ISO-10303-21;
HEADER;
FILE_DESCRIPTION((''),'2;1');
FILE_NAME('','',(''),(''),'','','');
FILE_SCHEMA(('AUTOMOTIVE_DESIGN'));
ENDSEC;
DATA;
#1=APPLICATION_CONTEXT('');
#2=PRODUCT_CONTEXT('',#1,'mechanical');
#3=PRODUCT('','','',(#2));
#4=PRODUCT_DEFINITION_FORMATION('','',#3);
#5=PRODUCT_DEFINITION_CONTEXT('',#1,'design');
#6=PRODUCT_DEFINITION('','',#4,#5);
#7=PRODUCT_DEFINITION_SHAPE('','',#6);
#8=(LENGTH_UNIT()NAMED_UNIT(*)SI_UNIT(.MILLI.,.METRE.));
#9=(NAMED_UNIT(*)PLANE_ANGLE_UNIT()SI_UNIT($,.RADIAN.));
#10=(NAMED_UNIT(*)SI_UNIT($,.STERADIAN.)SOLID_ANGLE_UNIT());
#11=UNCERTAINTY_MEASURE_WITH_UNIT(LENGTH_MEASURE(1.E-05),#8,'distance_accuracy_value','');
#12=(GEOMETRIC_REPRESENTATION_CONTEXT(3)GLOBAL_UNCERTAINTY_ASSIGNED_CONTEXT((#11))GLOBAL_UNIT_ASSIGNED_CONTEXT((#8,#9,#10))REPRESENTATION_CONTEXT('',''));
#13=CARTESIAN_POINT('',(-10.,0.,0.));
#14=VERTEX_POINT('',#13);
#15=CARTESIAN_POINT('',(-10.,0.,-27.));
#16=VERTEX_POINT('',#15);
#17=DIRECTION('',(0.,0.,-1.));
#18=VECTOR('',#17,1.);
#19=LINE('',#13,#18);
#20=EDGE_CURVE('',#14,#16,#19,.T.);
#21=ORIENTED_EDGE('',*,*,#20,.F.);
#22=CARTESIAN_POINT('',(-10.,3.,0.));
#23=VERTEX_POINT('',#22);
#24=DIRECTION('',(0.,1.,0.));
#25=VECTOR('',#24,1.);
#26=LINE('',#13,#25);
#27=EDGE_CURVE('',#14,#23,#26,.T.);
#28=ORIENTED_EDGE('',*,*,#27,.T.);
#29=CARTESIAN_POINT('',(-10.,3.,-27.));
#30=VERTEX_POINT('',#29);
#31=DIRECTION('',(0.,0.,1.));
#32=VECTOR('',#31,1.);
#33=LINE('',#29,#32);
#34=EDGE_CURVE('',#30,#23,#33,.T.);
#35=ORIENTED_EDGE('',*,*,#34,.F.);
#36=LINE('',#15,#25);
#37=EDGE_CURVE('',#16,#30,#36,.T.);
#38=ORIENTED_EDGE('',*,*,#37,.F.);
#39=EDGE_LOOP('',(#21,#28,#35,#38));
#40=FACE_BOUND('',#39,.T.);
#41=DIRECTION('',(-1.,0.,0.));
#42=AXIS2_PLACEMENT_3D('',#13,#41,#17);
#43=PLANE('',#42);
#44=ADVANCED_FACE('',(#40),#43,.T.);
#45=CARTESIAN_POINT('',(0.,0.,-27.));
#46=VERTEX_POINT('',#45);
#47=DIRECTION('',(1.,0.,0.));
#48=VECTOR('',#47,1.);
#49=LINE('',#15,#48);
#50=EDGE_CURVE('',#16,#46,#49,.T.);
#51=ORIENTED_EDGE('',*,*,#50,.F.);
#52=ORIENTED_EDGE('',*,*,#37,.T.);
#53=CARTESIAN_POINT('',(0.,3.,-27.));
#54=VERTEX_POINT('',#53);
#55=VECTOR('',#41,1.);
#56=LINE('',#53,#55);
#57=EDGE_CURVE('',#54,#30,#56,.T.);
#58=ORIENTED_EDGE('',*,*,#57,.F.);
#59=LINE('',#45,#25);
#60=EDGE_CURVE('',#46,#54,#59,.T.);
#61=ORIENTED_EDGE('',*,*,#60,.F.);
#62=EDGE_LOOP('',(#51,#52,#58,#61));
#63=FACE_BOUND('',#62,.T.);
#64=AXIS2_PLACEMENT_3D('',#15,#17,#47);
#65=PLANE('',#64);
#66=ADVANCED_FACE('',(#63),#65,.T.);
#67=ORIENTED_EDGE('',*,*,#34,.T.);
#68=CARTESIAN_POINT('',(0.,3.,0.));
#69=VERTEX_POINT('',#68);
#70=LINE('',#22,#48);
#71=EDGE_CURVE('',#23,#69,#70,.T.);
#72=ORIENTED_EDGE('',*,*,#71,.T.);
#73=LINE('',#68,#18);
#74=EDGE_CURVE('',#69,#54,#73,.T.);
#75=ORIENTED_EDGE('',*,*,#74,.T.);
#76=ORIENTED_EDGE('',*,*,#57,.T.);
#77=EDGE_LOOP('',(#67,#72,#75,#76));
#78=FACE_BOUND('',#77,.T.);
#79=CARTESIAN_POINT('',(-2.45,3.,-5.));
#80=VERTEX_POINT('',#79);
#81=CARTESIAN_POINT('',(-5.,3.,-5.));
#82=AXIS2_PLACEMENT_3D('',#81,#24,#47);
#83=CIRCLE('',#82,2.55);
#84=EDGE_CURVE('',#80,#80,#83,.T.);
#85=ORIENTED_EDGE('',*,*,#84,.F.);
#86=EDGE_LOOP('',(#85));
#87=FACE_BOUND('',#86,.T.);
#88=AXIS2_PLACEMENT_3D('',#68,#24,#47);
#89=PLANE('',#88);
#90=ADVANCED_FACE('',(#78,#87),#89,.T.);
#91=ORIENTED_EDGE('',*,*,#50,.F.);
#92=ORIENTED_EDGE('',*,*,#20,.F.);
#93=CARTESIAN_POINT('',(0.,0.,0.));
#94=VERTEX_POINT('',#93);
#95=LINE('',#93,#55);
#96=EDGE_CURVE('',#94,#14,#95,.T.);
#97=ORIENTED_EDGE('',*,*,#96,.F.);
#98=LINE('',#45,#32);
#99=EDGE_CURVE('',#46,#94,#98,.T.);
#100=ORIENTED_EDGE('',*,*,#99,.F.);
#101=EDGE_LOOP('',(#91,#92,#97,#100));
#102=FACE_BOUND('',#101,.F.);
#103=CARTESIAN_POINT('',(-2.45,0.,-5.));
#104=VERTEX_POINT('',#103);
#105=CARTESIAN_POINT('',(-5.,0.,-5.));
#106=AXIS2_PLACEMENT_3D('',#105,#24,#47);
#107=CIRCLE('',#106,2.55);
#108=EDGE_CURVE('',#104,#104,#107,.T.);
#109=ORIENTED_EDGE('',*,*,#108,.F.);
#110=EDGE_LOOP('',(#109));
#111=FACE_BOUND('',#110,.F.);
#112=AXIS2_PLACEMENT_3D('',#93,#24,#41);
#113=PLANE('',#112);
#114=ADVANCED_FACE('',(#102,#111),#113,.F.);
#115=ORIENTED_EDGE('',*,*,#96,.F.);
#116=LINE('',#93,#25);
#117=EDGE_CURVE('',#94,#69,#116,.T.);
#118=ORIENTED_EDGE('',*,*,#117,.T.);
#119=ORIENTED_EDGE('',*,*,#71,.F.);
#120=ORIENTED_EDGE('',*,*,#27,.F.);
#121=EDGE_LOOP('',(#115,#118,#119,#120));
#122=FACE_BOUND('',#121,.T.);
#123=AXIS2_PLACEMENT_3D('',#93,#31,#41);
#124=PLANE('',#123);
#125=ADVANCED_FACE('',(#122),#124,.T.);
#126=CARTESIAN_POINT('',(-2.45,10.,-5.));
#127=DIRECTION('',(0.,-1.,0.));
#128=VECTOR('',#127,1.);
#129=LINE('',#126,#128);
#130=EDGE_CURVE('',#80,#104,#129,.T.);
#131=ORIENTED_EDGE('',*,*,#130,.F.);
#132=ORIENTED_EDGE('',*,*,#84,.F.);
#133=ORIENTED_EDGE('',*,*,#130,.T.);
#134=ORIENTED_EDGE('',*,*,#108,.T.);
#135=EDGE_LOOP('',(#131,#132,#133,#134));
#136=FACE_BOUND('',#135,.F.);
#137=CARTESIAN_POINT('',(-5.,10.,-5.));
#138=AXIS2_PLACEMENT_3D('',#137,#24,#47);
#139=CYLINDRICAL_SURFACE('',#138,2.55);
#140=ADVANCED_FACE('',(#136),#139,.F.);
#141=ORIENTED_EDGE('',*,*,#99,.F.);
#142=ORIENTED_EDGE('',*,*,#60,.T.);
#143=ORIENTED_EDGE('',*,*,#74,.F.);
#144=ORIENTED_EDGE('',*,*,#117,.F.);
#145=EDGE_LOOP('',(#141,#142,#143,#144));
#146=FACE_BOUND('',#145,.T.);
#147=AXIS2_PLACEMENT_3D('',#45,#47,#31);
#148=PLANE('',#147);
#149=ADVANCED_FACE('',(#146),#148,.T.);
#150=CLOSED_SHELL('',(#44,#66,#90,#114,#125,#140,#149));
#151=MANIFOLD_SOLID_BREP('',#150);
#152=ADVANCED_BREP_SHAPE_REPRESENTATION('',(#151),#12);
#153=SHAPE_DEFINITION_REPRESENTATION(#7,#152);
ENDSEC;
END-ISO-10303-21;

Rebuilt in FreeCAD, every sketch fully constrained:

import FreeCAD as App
import Part
import Sketcher
from FreeCAD import Vector
Q = App.Units.Quantity


def add_polygon(sketch, points):
    """Adds a closed chain of lines whose ends are joined by coincident constraints."""
    first, n = sketch.GeometryCount, len(points)
    for a, b in zip(points, points[1:] + points[:1]):
        sketch.addGeometry(Part.LineSegment(App.Vector(*a, 0), App.Vector(*b, 0)), False)
    for i in range(n):
        sketch.addConstraint(Sketcher.Constraint("Coincident", first + i, 2, first + (i + 1) % n, 1))

doc = App.newDocument("Part")
body = doc.addObject("PartDesign::Body", "Body")

sketch1 = doc.addObject("Sketcher::SketchObject", "Sketch")
body.addObject(sketch1)
sketch1.AttachmentSupport = (doc.XZ_Plane, [""])
sketch1.MapMode = "FlatFace"
add_polygon(sketch1, [(-10, 0), (0, 0), (0, -27), (-10, -27)])
sketch1.addConstraint(Sketcher.Constraint("Horizontal", 0))
sketch1.addConstraint(Sketcher.Constraint("Vertical", 1))
sketch1.addConstraint(Sketcher.Constraint("Horizontal", 2))
sketch1.addConstraint(Sketcher.Constraint("Vertical", 3))
sketch1.addConstraint(Sketcher.Constraint("Coincident", 0, 2, -1, 1))
sketch1.addConstraint(Sketcher.Constraint("DistanceX", 0, 1, 0, 2, Q("10 mm")))
sketch1.addConstraint(Sketcher.Constraint("DistanceY", 1, 2, 1, 1, Q("27 mm")))
pad1 = doc.addObject("PartDesign::Pad", "Pad")
body.addObject(pad1)
pad1.Profile = sketch1
pad1.Length = 10
pad1.Reversed = True

sketch2 = doc.addObject("Sketcher::SketchObject", "Sketch001")
body.addObject(sketch2)
sketch2.AttachmentSupport = (doc.XZ_Plane, [""])
sketch2.MapMode = "FlatFace"
sketch2.AttachmentOffset = App.Placement(Vector(0, 0, -10), App.Rotation())
sketch2.addGeometry(Part.Circle(Vector(-5, -5, 0), Vector(0, 0, 1), 2.5), False)
sketch2.addConstraint(Sketcher.Constraint("Diameter", 0, Q("5.1 mm")))
sketch2.addConstraint(Sketcher.Constraint("DistanceX", 0, 3, -1, 1, Q("5 mm")))
sketch2.addConstraint(Sketcher.Constraint("DistanceY", 0, 3, -1, 1, Q("5 mm")))
pocket1 = doc.addObject("PartDesign::Pocket", "Pocket")
body.addObject(pocket1)
pocket1.Profile = sketch2
pocket1.Length = 10
pocket1.Reversed = True

sketch3 = doc.addObject("Sketcher::SketchObject", "Sketch002")
body.addObject(sketch3)
sketch3.AttachmentSupport = (doc.XZ_Plane, [""])
sketch3.MapMode = "FlatFace"
sketch3.AttachmentOffset = App.Placement(Vector(0, 0, -10), App.Rotation())
add_polygon(sketch3, [(0, 0), (0, -27), (-10, -27), (-10, 0)])
sketch3.addConstraint(Sketcher.Constraint("Vertical", 0))
sketch3.addConstraint(Sketcher.Constraint("Horizontal", 1))
sketch3.addConstraint(Sketcher.Constraint("Vertical", 2))
sketch3.addConstraint(Sketcher.Constraint("Horizontal", 3))
sketch3.addConstraint(Sketcher.Constraint("Coincident", 3, 2, -1, 1))
sketch3.addConstraint(Sketcher.Constraint("DistanceY", 0, 2, 0, 1, Q("27 mm")))
sketch3.addConstraint(Sketcher.Constraint("DistanceX", 1, 2, 1, 1, Q("10 mm")))
pocket2 = doc.addObject("PartDesign::Pocket", "Pocket001")
body.addObject(pocket2)
pocket2.Profile = sketch3
pocket2.Length = 7
pocket2.Reversed = True

doc.recompute()
